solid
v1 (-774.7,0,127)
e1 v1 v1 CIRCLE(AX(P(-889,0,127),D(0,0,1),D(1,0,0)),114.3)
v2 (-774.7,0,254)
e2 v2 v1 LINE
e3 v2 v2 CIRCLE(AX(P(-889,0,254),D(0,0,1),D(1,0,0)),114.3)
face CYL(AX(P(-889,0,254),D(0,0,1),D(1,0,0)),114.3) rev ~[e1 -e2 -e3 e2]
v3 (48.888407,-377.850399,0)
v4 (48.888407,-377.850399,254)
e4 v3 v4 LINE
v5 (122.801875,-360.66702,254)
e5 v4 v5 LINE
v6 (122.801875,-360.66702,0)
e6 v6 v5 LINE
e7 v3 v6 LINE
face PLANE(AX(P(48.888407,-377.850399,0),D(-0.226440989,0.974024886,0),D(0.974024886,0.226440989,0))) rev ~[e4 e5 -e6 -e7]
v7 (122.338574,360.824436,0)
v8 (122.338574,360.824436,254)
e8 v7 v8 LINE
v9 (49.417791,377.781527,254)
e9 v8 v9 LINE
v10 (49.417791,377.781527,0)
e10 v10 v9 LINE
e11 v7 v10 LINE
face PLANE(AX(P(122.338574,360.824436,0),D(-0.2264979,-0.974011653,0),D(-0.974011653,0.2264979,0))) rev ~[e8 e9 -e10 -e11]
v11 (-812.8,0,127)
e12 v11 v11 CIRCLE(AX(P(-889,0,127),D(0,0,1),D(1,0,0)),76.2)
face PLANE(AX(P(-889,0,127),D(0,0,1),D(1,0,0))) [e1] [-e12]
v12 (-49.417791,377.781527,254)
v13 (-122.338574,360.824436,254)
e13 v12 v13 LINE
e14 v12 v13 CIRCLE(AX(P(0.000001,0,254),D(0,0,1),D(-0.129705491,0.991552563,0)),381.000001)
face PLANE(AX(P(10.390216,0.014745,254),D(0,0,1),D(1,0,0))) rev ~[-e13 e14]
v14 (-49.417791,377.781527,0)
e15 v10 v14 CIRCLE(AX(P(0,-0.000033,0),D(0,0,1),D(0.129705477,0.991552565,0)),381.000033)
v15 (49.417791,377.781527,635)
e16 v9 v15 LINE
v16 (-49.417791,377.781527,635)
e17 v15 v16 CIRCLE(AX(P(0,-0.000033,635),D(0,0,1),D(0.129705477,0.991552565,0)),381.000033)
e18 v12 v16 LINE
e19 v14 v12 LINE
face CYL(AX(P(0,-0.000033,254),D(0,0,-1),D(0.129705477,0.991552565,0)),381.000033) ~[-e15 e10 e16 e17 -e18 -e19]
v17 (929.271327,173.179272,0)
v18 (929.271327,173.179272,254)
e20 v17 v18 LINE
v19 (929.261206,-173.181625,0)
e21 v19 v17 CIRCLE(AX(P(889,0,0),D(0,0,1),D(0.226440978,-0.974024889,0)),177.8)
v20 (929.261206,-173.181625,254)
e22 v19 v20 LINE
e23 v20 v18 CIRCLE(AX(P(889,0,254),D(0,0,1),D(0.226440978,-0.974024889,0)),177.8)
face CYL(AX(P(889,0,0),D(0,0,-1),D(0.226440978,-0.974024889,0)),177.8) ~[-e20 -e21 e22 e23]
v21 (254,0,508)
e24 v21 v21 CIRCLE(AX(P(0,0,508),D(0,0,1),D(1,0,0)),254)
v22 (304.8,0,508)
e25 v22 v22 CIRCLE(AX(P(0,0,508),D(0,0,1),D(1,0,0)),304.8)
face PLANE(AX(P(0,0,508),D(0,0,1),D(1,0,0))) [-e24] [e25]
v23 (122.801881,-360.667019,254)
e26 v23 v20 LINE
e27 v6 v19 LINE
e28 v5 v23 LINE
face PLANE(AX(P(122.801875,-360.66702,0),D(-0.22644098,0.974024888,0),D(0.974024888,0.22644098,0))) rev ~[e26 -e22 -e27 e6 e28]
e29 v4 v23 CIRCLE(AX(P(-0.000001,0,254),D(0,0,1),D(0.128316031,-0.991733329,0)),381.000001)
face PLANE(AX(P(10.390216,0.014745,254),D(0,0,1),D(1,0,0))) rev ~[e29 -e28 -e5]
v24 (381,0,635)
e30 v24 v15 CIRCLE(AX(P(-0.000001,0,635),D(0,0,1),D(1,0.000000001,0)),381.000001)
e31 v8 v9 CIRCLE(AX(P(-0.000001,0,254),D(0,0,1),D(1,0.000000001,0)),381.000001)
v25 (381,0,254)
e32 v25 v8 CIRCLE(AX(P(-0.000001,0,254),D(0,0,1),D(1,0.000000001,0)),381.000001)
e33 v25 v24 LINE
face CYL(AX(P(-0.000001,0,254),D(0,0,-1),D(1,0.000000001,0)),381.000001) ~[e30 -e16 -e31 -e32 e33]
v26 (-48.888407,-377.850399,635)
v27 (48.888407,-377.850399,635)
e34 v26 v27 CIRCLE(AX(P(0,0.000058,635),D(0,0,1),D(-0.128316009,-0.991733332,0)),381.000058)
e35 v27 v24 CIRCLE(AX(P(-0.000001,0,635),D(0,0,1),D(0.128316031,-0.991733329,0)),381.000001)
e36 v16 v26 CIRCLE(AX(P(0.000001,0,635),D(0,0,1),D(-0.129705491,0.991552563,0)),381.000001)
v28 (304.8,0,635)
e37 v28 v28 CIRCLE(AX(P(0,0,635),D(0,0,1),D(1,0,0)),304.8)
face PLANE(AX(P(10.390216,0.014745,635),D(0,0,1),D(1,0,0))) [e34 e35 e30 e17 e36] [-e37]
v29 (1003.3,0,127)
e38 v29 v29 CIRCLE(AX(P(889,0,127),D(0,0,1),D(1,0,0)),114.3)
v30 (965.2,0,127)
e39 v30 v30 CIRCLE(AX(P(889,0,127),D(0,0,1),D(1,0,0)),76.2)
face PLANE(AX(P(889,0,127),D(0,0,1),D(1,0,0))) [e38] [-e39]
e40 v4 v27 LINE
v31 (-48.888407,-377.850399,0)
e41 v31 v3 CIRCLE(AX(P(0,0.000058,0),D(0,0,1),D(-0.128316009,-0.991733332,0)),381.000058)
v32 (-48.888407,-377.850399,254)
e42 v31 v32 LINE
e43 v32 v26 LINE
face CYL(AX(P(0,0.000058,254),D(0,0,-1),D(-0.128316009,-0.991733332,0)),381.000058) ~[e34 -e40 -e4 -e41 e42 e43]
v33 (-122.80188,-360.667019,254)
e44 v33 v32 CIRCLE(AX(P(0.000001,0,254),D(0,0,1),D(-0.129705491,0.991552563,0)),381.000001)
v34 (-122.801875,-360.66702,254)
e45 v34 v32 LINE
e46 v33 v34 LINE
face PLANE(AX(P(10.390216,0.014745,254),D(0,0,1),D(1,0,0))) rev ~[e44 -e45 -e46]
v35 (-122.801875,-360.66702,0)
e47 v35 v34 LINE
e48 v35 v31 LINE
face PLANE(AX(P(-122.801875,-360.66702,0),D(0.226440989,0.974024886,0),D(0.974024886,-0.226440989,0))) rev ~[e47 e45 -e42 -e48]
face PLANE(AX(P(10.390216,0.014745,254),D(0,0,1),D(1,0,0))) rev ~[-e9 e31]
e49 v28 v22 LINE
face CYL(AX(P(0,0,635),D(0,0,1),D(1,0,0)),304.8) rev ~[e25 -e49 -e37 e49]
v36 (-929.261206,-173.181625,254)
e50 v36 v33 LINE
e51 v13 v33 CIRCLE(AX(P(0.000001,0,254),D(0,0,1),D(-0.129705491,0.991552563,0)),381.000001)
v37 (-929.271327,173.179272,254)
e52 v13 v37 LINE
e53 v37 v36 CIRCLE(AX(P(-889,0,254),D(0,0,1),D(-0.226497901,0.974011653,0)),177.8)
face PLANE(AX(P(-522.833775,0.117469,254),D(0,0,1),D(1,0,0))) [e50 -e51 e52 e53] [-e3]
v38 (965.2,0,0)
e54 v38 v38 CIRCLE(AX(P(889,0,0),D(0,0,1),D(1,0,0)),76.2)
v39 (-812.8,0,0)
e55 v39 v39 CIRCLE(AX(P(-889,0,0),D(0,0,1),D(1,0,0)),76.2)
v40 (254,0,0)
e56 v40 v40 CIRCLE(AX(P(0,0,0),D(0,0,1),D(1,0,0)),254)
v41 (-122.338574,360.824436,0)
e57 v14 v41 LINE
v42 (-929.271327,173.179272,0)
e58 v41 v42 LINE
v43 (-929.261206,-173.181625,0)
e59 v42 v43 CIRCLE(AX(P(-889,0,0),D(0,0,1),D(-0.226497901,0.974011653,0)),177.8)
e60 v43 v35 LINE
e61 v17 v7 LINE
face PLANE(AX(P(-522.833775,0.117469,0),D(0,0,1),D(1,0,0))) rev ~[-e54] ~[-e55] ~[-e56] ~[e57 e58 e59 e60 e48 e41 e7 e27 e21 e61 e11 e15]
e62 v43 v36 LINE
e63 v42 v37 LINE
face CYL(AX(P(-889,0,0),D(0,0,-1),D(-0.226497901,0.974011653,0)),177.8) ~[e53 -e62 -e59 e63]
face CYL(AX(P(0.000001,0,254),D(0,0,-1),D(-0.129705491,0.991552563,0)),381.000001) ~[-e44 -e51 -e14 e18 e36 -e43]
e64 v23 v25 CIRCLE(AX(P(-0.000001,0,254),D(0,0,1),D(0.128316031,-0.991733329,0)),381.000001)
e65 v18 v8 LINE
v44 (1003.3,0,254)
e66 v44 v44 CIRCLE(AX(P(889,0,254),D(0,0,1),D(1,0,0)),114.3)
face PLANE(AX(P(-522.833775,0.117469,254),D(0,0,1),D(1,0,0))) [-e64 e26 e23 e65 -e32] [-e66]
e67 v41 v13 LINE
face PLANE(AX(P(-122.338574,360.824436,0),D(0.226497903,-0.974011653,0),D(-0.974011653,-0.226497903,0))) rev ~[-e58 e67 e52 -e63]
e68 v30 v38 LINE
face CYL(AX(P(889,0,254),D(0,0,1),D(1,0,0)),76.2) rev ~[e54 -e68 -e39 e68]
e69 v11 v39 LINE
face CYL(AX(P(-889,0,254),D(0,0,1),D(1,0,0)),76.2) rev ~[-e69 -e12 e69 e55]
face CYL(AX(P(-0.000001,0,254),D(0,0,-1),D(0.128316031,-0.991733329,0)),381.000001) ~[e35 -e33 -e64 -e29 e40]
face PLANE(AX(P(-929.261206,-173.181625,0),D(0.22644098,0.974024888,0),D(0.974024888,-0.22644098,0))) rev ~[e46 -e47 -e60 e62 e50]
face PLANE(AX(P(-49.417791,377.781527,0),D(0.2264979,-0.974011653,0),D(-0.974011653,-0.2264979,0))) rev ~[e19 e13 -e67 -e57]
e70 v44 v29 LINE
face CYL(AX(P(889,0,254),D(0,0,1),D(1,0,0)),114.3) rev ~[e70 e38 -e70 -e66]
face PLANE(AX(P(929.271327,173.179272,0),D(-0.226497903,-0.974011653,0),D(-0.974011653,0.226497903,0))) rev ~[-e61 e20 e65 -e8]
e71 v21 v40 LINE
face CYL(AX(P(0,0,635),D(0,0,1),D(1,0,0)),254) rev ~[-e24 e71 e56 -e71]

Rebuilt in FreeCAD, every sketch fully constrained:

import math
import FreeCAD as App
import Part
import Sketcher
from FreeCAD import Vector
Q = App.Units.Quantity

doc = App.newDocument("Part")
params = doc.addObject("Spreadsheet::Sheet", "Params")
for row, (alias, value) in enumerate([
    ("sketch1_radius", "7 in"),
    ("pad1_length", "10 in"),
    ("sketch2_radius", "15 in"),
    ("pad2_length", "15 in"),
    ("sketch3_diameter", "20 in"),
    ("pocket1_length", "25 in"),
    ("sketch4_diameter", "24 in"),
    ("pocket2_length", "5 in"),
    ("sketch5_diameter", "6 in"),
    ("pocket3_length", "10 in"),
    ("sketch6_diameter", "9 in"),
    ("pocket4_length", "5 in"),
    ("sketch7_diameter", "9 in"),
    ("pocket5_length", "5 in"),
], start=1):
    params.set(f"A{row}", alias)
    params.set(f"B{row}", "=" + value)
    params.setAlias(f"B{row}", alias)

body = doc.addObject("PartDesign::Body", "Body")

sketch1 = body.newObject("Sketcher::SketchObject", "Sketch")
sketch1.AttachmentSupport = (doc.getObject("XY_Plane"), [""])
sketch1.MapMode = "FlatFace"
sketch1.addGeometry([
    Part.LineSegment(Vector(-122, 361, 0), Vector(-929, 173, 0)),
    Part.ArcOfCircle(Part.Circle(Vector(-889, 0, 0), Vector(0, 0, 1), 178), math.radians(103), math.radians(257)),
    Part.LineSegment(Vector(-929, -173, 0), Vector(-123, -361, 0)),
    Part.LineSegment(Vector(-123, -361, 0), Vector(-49, -378, 0)),
    Part.ArcOfCircle(Part.Circle(Vector(0, 0, 0), Vector(0, 0, 1), 381), math.radians(-97.37), math.radians(-82.63)),
    Part.LineSegment(Vector(49, -378, 0), Vector(123, -361, 0)),
    Part.LineSegment(Vector(123, -361, 0), Vector(929, -173, 0)),
    Part.ArcOfCircle(Part.Circle(Vector(889, 0, 0), Vector(0, 0, 1), 178), math.radians(-77), math.radians(77)),
    Part.LineSegment(Vector(929, 173, 0), Vector(122, 361, 0)),
    Part.LineSegment(Vector(122, 361, 0), Vector(49, 378, 0)),
    Part.ArcOfCircle(Part.Circle(Vector(0, 0, 0), Vector(0, 0, 1), 381), math.radians(82.55), math.radians(97.45)),
    Part.LineSegment(Vector(-49, 378, 0), Vector(-122, 361, 0)),
], False)
sketch1.addConstraint([
    Sketcher.Constraint("Tangent", 0, 2, 1, 1),
    Sketcher.Constraint("Tangent", 1, 2, 2, 1),
    Sketcher.Constraint("Coincident", 2, 2, 3, 1),
    Sketcher.Constraint("Coincident", 3, 2, 4, 1),
    Sketcher.Constraint("Coincident", 4, 2, 5, 1),
    Sketcher.Constraint("Coincident", 5, 2, 6, 1),
    Sketcher.Constraint("Tangent", 6, 2, 7, 1),
    Sketcher.Constraint("Tangent", 7, 2, 8, 1),
    Sketcher.Constraint("Coincident", 8, 2, 9, 1),
    Sketcher.Constraint("Coincident", 9, 2, 10, 1),
    Sketcher.Constraint("Coincident", 10, 2, 11, 1),
    Sketcher.Constraint("Coincident", 11, 2, 0, 1),
    Sketcher.Constraint("Equal", 1, 7),
    Sketcher.Constraint("Symmetric", 1, 3, 7, 3, -1, 1),
    Sketcher.Constraint("Symmetric", 3, 2, 4, 2, -2),
    Sketcher.Constraint("Symmetric", 2, 2, 5, 2, -2),
    Sketcher.Constraint("Symmetric", 9, 2, 10, 2, -2),
    Sketcher.Constraint("Symmetric", 8, 2, 11, 2, -2),
    Sketcher.Constraint("PointOnObject", 1, 3, -1),
    Sketcher.Constraint("Parallel", 2, 3),
    Sketcher.Constraint("Parallel", 8, 9),
    Sketcher.Constraint("Radius", 1, Q("7 in")),
    Sketcher.Constraint("DistanceX", 1, 3, -1, 1, Q("35 in")),
    Sketcher.Constraint("DistanceY", 3, 2, -1, 1, Q("14.876 in")),
    Sketcher.Constraint("Radius", 4, Q("381.000058 mm")),
    Sketcher.Constraint("Radius", 10, Q("381.000033 mm")),
    Sketcher.Constraint("DistanceX", 1, 2, 3, 2, Q("880.372799 mm")),
    Sketcher.Constraint("DistanceX", 8, 2, 5, 2, Q("0.463301 mm")),
    Sketcher.Constraint("Distance", 0, Q("828.463141 mm")),
    Sketcher.Constraint("Distance", 3, Q("75.884579 mm")),
    Sketcher.Constraint("DistanceX", -1, 1, 9, 2, Q("49.417791 mm")),
])
sketch1.setExpression("Constraints[21]", "Params.sketch1_radius")
pad1 = body.newObject("PartDesign::Pad", "Pad")
pad1.Profile = sketch1
pad1.setExpression("Length", "Params.pad1_length")

sketch2 = body.newObject("Sketcher::SketchObject", "Sketch001")
sketch2.AttachmentSupport = (doc.getObject("XY_Plane"), [""])
sketch2.MapMode = "FlatFace"
sketch2.AttachmentOffset = App.Placement(Vector(0, 0, 10 * 25.4), App.Rotation())
sketch2.addGeometry([
    Part.ArcOfCircle(Part.Circle(Vector(-0.000001, 0, 0), Vector(0, 0, 1), 381.000001), math.radians(0), math.radians(82.547426)),
    Part.ArcOfCircle(Part.Circle(Vector(0, -0.000033, 0), Vector(0, 0, 1), 381.000033), math.radians(82.547427), math.radians(97.452573)),
    Part.ArcOfCircle(Part.Circle(Vector(0.000001, 0, 0), Vector(0, 0, 1), 381.000001), math.radians(97.452574), math.radians(262.627707)),
    Part.ArcOfCircle(Part.Circle(Vector(0, 0.000058, 0), Vector(0, 0, 1), 381.000058), math.radians(-97.372292), math.radians(-82.627708)),
    Part.ArcOfCircle(Part.Circle(Vector(-0.000001, 0, 0), Vector(0, 0, 1), 381.000001), math.radians(-82.627707), math.radians(0)),
], False)
sketch2.addConstraint([
    Sketcher.Constraint("Coincident", 0, 2, 1, 1),
    Sketcher.Constraint("Coincident", 1, 2, 2, 1),
    Sketcher.Constraint("Coincident", 2, 2, 3, 1),
    Sketcher.Constraint("Coincident", 3, 2, 4, 1),
    Sketcher.Constraint("Coincident", 4, 2, 0, 1),
    Sketcher.Constraint("Coincident", 0, 3, -1, 1),
    Sketcher.Constraint("Coincident", 2, 3, -1, 1),
    Sketcher.Constraint("Coincident", 4, 3, -1, 1),
    Sketcher.Constraint("PointOnObject", 1, 3, -2),
    Sketcher.Constraint("PointOnObject", 4, 2, -1),
    Sketcher.Constraint("Radius", 0, Q("15 in")),
    Sketcher.Constraint("DistanceY", 2, 2, -1, 1, Q("14.876 in")),
    Sketcher.Constraint("DistanceY", 3, 2, -1, 1, Q("14.876 in")),
    Sketcher.Constraint("Radius", 1, Q("381.000033 mm")),
    Sketcher.Constraint("Radius", 3, Q("381.000058 mm")),
    Sketcher.Constraint("DistanceX", -1, 1, 0, 2, Q("49.417791 mm")),
    Sketcher.Constraint("DistanceX", 1, 2, -1, 1, Q("49.417791 mm")),
])
sketch2.setExpression("Constraints[10]", "Params.sketch2_radius")
pad2 = body.newObject("PartDesign::Pad", "Pad001")
pad2.Profile = sketch2
pad2.setExpression("Length", "Params.pad2_length")

sketch3 = body.newObject("Sketcher::SketchObject", "Sketch002")
sketch3.AttachmentSupport = (doc.getObject("XY_Plane"), [""])
sketch3.MapMode = "FlatFace"
sketch3.AttachmentOffset = App.Placement(Vector(0, 0, 25 * 25.4), App.Rotation())
sketch3.addGeometry(Part.Circle(Vector(0, 0, 0), Vector(0, 0, 1), 254), False)
sketch3.addConstraint([
    Sketcher.Constraint("Coincident", 0, 3, -1, 1),
    Sketcher.Constraint("Diameter", 0, Q("20 in")),
])
sketch3.setExpression("Constraints[1]", "Params.sketch3_diameter")
pocket1 = body.newObject("PartDesign::Pocket", "Pocket")
pocket1.Profile = sketch3
pocket1.setExpression("Length", "Params.pocket1_length")

sketch4 = body.newObject("Sketcher::SketchObject", "Sketch003")
sketch4.AttachmentSupport = (doc.getObject("XY_Plane"), [""])
sketch4.MapMode = "FlatFace"
sketch4.AttachmentOffset = App.Placement(Vector(0, 0, 25 * 25.4), App.Rotation())
sketch4.addGeometry(Part.Circle(Vector(0, 0, 0), Vector(0, 0, 1), 305), False)
sketch4.addConstraint([
    Sketcher.Constraint("Coincident", 0, 3, -1, 1),
    Sketcher.Constraint("Diameter", 0, Q("24 in")),
])
sketch4.setExpression("Constraints[1]", "Params.sketch4_diameter")
pocket2 = body.newObject("PartDesign::Pocket", "Pocket001")
pocket2.Profile = sketch4
pocket2.setExpression("Length", "Params.pocket2_length")

sketch5 = body.newObject("Sketcher::SketchObject", "Sketch004")
sketch5.AttachmentSupport = (doc.getObject("XY_Plane"), [""])
sketch5.MapMode = "FlatFace"
sketch5.AttachmentOffset = App.Placement(Vector(0, 0, 10 * 25.4), App.Rotation())
sketch5.addGeometry([
    Part.Circle(Vector(889, 0, 0), Vector(0, 0, 1), 76),
    Part.Circle(Vector(-889, 0, 0), Vector(0, 0, 1), 76),
], False)
sketch5.addConstraint([
    Sketcher.Constraint("Equal", 0, 1),
    Sketcher.Constraint("Symmetric", 0, 3, 1, 3, -1, 1),
    Sketcher.Constraint("PointOnObject", 0, 3, -1),
    Sketcher.Constraint("Diameter", 0, Q("6 in")),
    Sketcher.Constraint("DistanceX", -1, 1, 0, 3, Q("35 in")),
])
sketch5.setExpression("Constraints[3]", "Params.sketch5_diameter")
pocket3 = body.newObject("PartDesign::Pocket", "Pocket002")
pocket3.Profile = sketch5
pocket3.setExpression("Length", "Params.pocket3_length")

sketch6 = body.newObject("Sketcher::SketchObject", "Sketch005")
sketch6.AttachmentSupport = (doc.getObject("XY_Plane"), [""])
sketch6.MapMode = "FlatFace"
sketch6.AttachmentOffset = App.Placement(Vector(0, 0, 10 * 25.4), App.Rotation())
sketch6.addGeometry(Part.Circle(Vector(-889, 0, 0), Vector(0, 0, 1), 114), False)
sketch6.addConstraint([
    Sketcher.Constraint("PointOnObject", 0, 3, -1),
    Sketcher.Constraint("Diameter", 0, Q("9 in")),
    Sketcher.Constraint("DistanceX", 0, 3, -1, 1, Q("35 in")),
])
sketch6.setExpression("Constraints[1]", "Params.sketch6_diameter")
pocket4 = body.newObject("PartDesign::Pocket", "Pocket003")
pocket4.Profile = sketch6
pocket4.setExpression("Length", "Params.pocket4_length")

sketch7 = body.newObject("Sketcher::SketchObject", "Sketch006")
sketch7.AttachmentSupport = (doc.getObject("XY_Plane"), [""])
sketch7.MapMode = "FlatFace"
sketch7.AttachmentOffset = App.Placement(Vector(0, 0, 10 * 25.4), App.Rotation())
sketch7.addGeometry(Part.Circle(Vector(889, 0, 0), Vector(0, 0, 1), 114), False)
sketch7.addConstraint([
    Sketcher.Constraint("PointOnObject", 0, 3, -1),
    Sketcher.Constraint("Diameter", 0, Q("9 in")),
    Sketcher.Constraint("DistanceX", -1, 1, 0, 3, Q("35 in")),
])
sketch7.setExpression("Constraints[1]", "Params.sketch7_diameter")
pocket5 = body.newObject("PartDesign::Pocket", "Pocket004")
pocket5.Profile = sketch7
pocket5.setExpression("Length", "Params.pocket5_length")

doc.recompute()
